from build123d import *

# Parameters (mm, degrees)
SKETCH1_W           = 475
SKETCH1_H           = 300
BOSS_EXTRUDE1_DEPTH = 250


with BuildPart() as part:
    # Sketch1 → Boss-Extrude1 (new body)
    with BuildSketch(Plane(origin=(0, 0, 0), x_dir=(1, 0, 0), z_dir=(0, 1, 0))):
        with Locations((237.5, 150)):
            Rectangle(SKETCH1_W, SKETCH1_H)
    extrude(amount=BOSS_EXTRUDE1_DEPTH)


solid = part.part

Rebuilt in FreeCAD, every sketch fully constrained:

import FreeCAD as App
import Part
import Sketcher
Q = App.Units.Quantity

doc = App.newDocument("Part")
params = doc.addObject("Spreadsheet::Sheet", "Params")
for row, (alias, value) in enumerate([
    ("sketch1_width", "475 mm"),
    ("sketch1_height", "300 mm"),
    ("pad1_length", "250 mm"),
], start=1):
    params.set(f"A{row}", alias)
    params.set(f"B{row}", "=" + value)
    params.setAlias(f"B{row}", alias)

body = doc.addObject("PartDesign::Body", "Body")

# Sketch on XZ plane
sketch1 = body.newObject("Sketcher::SketchObject", "Sketch")
sketch1.AttachmentSupport = (doc.getObject("XZ_Plane"), [""])
sketch1.MapMode = "FlatFace"
sketch1.addGeometry(Part.LineSegment(App.Vector(0, -300, 0), App.Vector(0, 0, 0)), False)
sketch1.addGeometry(Part.LineSegment(App.Vector(0, 0, 0), App.Vector(475, 0, 0)), False)
sketch1.addGeometry(Part.LineSegment(App.Vector(475, 0, 0), App.Vector(475, -300, 0)), False)
sketch1.addGeometry(Part.LineSegment(App.Vector(475, -300, 0), App.Vector(0, -300, 0)), False)
sketch1.addConstraint(Sketcher.Constraint("Coincident", 0, 2, 1, 1))
sketch1.addConstraint(Sketcher.Constraint("Coincident", 1, 2, 2, 1))
sketch1.addConstraint(Sketcher.Constraint("Coincident", 2, 2, 3, 1))
sketch1.addConstraint(Sketcher.Constraint("Coincident", 3, 2, 0, 1))
sketch1.addConstraint(Sketcher.Constraint("Vertical", 0))
sketch1.addConstraint(Sketcher.Constraint("Horizontal", 1))
sketch1.addConstraint(Sketcher.Constraint("Vertical", 2))
sketch1.addConstraint(Sketcher.Constraint("Horizontal", 3))
sketch1.addConstraint(Sketcher.Constraint("Coincident", 0, 2, -1, 1))
sketch1.addConstraint(Sketcher.Constraint("DistanceX", 1, 1, 1, 2, Q("475 mm")))
sketch1.addConstraint(Sketcher.Constraint("DistanceY", 0, 1, 0, 2, Q("300 mm")))
sketch1.setExpression("Constraints[9]", "Params.sketch1_width")
sketch1.setExpression("Constraints[10]", "Params.sketch1_height")
pad1 = body.newObject("PartDesign::Pad", "Pad")
pad1.Profile = sketch1
pad1.setExpression("Length", "Params.pad1_length")
pad1.Reversed = True

doc.recompute()
